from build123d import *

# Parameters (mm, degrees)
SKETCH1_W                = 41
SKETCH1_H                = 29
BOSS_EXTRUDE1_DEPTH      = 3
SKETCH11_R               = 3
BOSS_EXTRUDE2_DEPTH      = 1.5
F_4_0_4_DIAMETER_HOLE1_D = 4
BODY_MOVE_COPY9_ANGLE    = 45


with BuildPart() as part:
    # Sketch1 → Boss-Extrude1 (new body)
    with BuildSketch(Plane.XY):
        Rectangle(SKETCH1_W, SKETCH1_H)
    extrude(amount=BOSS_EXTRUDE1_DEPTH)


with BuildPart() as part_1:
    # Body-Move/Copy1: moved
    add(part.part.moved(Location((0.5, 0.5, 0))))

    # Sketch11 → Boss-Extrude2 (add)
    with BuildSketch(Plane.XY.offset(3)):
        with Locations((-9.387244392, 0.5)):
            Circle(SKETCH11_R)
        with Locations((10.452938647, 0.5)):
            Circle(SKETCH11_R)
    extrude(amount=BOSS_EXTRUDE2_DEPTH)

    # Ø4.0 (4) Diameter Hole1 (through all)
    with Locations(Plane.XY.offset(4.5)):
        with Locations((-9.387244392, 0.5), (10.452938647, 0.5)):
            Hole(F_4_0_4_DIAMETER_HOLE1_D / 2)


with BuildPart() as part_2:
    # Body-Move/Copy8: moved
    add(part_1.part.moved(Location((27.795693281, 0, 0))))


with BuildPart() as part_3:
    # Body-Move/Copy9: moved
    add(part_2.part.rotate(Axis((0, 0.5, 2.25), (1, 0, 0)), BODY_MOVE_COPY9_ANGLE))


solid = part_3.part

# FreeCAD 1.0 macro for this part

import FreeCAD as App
import Part
import Sketcher

V = App.Vector


def add_polygon(sketch, points):
    """Adds a closed chain of lines whose ends are joined by coincident constraints."""
    first, n = sketch.GeometryCount, len(points)
    for a, b in zip(points, points[1:] + points[:1]):
        sketch.addGeometry(Part.LineSegment(App.Vector(*a, 0), App.Vector(*b, 0)), False)
    for i in range(n):
        sketch.addConstraint(Sketcher.Constraint("Coincident", first + i, 2, first + (i + 1) % n, 1))

doc = App.newDocument("Part")
body = doc.addObject("PartDesign::Body", "Body")

# Sketch on XY plane
sketch1 = doc.addObject("Sketcher::SketchObject", "Sketch")
body.addObject(sketch1)
sketch1.AttachmentSupport = (doc.XY_Plane, [""])
sketch1.MapMode = "FlatFace"
add_polygon(sketch1, [(-20, 14), (-20, -14), (20, -14), (20, 14)])  # lines 0-3
sketch1.addConstraint([
    Sketcher.Constraint("Vertical", 0),
    Sketcher.Constraint("Horizontal", 1),
    Sketcher.Constraint("Vertical", 2),
    Sketcher.Constraint("Horizontal", 3),
    Sketcher.Constraint("Symmetric", 0, 2, 2, 2, -1, 1),
    Sketcher.Constraint("DistanceX", 1, 1, 1, 2, 41.0),
    Sketcher.Constraint("DistanceY", 0, 2, 0, 1, 29.0),
])
pad1 = doc.addObject("PartDesign::Pad", "Pad")
body.addObject(pad1)
pad1.Profile = sketch1
pad1.Length = 3
body2 = doc.addObject("PartDesign::Body", "Body001")
doc.recompute()

body.Placement = App.Placement(V(0.5, 0.5, 0), App.Rotation(V(0, 0, 1), 0))
boolean = doc.addObject("PartDesign::Boolean", "Boolean")
body2.addObject(boolean)
boolean.Type = "Fuse"
boolean.addObjects([body])

# Sketch on XY plane
sketch2 = doc.addObject("Sketcher::SketchObject", "Sketch001")
body2.addObject(sketch2)
sketch2.AttachmentSupport = (doc.getObject("XY_Plane001"), [""])
sketch2.MapMode = "FlatFace"
sketch2.AttachmentOffset = App.Placement(V(0, 0, 3), App.Rotation())
sketch2.addGeometry([
    Part.Circle(V(-9.4, 0.5, 0), V(0, 0, 1), 3),
    Part.Circle(V(10.5, 0.5, 0), V(0, 0, 1), 3),
], False)
sketch2.addConstraint([
    Sketcher.Constraint("Equal", 0, 1),
    Sketcher.Constraint("Horizontal", 0, 3, 1, 3),
    Sketcher.Constraint("Diameter", 0, 6.0),
    Sketcher.Constraint("DistanceY", -1, 1, 0, 3, 0.5),
    Sketcher.Constraint("DistanceX", -1, 1, 1, 3, 10.452939),
    Sketcher.Constraint("DistanceX", 0, 3, -1, 1, 9.387244),
])
pad2 = doc.addObject("PartDesign::Pad", "Pad001")
body2.addObject(pad2)
pad2.Profile = sketch2
pad2.Length = 1.5

# Sketch on XY plane
sketch3 = doc.addObject("Sketcher::SketchObject", "Sketch002")
body2.addObject(sketch3)
sketch3.AttachmentSupport = (doc.getObject("XY_Plane001"), [""])
sketch3.MapMode = "FlatFace"
sketch3.AttachmentOffset = App.Placement(V(0, 0, 4.5), App.Rotation())
sketch3.addGeometry([
    Part.Circle(V(-9.4, 0.5, 0), V(0, 0, 1), 2),
    Part.Circle(V(10.5, 0.5, 0), V(0, 0, 1), 2),
], False)
sketch3.addConstraint([
    Sketcher.Constraint("Equal", 0, 1),
    Sketcher.Constraint("Horizontal", 0, 3, 1, 3),
    Sketcher.Constraint("Diameter", 0, 4.0),
    Sketcher.Constraint("DistanceY", -1, 1, 0, 3, 0.5),
    Sketcher.Constraint("DistanceX", -1, 1, 1, 3, 10.452939),
    Sketcher.Constraint("DistanceX", 0, 3, -1, 1, 9.387244),
])
doc.recompute()
hole = doc.addObject("PartDesign::Hole", "Hole")
body2.addObject(hole)
hole.Profile = sketch3
hole.ThreadType = "None"
hole.Diameter = 4
hole.DepthType = "ThroughAll"
body3 = doc.addObject("PartDesign::Body", "Body002")
doc.recompute()

body2.Placement = App.Placement(V(27.795693, 0, 0), App.Rotation(V(0, 0, 1), 0))
boolean2 = doc.addObject("PartDesign::Boolean", "Boolean001")
body3.addObject(boolean2)
boolean2.Type = "Fuse"
boolean2.addObjects([body2])
body4 = doc.addObject("PartDesign::Body", "Body003")
doc.recompute()

body3.Placement = App.Placement(V(0, 1.737437, 0.305456), App.Rotation(V(1, 0, 0), 45))
boolean3 = doc.addObject("PartDesign::Boolean", "Boolean002")
body4.addObject(boolean3)
boolean3.Type = "Fuse"
boolean3.addObjects([body3])

doc.recompute()
